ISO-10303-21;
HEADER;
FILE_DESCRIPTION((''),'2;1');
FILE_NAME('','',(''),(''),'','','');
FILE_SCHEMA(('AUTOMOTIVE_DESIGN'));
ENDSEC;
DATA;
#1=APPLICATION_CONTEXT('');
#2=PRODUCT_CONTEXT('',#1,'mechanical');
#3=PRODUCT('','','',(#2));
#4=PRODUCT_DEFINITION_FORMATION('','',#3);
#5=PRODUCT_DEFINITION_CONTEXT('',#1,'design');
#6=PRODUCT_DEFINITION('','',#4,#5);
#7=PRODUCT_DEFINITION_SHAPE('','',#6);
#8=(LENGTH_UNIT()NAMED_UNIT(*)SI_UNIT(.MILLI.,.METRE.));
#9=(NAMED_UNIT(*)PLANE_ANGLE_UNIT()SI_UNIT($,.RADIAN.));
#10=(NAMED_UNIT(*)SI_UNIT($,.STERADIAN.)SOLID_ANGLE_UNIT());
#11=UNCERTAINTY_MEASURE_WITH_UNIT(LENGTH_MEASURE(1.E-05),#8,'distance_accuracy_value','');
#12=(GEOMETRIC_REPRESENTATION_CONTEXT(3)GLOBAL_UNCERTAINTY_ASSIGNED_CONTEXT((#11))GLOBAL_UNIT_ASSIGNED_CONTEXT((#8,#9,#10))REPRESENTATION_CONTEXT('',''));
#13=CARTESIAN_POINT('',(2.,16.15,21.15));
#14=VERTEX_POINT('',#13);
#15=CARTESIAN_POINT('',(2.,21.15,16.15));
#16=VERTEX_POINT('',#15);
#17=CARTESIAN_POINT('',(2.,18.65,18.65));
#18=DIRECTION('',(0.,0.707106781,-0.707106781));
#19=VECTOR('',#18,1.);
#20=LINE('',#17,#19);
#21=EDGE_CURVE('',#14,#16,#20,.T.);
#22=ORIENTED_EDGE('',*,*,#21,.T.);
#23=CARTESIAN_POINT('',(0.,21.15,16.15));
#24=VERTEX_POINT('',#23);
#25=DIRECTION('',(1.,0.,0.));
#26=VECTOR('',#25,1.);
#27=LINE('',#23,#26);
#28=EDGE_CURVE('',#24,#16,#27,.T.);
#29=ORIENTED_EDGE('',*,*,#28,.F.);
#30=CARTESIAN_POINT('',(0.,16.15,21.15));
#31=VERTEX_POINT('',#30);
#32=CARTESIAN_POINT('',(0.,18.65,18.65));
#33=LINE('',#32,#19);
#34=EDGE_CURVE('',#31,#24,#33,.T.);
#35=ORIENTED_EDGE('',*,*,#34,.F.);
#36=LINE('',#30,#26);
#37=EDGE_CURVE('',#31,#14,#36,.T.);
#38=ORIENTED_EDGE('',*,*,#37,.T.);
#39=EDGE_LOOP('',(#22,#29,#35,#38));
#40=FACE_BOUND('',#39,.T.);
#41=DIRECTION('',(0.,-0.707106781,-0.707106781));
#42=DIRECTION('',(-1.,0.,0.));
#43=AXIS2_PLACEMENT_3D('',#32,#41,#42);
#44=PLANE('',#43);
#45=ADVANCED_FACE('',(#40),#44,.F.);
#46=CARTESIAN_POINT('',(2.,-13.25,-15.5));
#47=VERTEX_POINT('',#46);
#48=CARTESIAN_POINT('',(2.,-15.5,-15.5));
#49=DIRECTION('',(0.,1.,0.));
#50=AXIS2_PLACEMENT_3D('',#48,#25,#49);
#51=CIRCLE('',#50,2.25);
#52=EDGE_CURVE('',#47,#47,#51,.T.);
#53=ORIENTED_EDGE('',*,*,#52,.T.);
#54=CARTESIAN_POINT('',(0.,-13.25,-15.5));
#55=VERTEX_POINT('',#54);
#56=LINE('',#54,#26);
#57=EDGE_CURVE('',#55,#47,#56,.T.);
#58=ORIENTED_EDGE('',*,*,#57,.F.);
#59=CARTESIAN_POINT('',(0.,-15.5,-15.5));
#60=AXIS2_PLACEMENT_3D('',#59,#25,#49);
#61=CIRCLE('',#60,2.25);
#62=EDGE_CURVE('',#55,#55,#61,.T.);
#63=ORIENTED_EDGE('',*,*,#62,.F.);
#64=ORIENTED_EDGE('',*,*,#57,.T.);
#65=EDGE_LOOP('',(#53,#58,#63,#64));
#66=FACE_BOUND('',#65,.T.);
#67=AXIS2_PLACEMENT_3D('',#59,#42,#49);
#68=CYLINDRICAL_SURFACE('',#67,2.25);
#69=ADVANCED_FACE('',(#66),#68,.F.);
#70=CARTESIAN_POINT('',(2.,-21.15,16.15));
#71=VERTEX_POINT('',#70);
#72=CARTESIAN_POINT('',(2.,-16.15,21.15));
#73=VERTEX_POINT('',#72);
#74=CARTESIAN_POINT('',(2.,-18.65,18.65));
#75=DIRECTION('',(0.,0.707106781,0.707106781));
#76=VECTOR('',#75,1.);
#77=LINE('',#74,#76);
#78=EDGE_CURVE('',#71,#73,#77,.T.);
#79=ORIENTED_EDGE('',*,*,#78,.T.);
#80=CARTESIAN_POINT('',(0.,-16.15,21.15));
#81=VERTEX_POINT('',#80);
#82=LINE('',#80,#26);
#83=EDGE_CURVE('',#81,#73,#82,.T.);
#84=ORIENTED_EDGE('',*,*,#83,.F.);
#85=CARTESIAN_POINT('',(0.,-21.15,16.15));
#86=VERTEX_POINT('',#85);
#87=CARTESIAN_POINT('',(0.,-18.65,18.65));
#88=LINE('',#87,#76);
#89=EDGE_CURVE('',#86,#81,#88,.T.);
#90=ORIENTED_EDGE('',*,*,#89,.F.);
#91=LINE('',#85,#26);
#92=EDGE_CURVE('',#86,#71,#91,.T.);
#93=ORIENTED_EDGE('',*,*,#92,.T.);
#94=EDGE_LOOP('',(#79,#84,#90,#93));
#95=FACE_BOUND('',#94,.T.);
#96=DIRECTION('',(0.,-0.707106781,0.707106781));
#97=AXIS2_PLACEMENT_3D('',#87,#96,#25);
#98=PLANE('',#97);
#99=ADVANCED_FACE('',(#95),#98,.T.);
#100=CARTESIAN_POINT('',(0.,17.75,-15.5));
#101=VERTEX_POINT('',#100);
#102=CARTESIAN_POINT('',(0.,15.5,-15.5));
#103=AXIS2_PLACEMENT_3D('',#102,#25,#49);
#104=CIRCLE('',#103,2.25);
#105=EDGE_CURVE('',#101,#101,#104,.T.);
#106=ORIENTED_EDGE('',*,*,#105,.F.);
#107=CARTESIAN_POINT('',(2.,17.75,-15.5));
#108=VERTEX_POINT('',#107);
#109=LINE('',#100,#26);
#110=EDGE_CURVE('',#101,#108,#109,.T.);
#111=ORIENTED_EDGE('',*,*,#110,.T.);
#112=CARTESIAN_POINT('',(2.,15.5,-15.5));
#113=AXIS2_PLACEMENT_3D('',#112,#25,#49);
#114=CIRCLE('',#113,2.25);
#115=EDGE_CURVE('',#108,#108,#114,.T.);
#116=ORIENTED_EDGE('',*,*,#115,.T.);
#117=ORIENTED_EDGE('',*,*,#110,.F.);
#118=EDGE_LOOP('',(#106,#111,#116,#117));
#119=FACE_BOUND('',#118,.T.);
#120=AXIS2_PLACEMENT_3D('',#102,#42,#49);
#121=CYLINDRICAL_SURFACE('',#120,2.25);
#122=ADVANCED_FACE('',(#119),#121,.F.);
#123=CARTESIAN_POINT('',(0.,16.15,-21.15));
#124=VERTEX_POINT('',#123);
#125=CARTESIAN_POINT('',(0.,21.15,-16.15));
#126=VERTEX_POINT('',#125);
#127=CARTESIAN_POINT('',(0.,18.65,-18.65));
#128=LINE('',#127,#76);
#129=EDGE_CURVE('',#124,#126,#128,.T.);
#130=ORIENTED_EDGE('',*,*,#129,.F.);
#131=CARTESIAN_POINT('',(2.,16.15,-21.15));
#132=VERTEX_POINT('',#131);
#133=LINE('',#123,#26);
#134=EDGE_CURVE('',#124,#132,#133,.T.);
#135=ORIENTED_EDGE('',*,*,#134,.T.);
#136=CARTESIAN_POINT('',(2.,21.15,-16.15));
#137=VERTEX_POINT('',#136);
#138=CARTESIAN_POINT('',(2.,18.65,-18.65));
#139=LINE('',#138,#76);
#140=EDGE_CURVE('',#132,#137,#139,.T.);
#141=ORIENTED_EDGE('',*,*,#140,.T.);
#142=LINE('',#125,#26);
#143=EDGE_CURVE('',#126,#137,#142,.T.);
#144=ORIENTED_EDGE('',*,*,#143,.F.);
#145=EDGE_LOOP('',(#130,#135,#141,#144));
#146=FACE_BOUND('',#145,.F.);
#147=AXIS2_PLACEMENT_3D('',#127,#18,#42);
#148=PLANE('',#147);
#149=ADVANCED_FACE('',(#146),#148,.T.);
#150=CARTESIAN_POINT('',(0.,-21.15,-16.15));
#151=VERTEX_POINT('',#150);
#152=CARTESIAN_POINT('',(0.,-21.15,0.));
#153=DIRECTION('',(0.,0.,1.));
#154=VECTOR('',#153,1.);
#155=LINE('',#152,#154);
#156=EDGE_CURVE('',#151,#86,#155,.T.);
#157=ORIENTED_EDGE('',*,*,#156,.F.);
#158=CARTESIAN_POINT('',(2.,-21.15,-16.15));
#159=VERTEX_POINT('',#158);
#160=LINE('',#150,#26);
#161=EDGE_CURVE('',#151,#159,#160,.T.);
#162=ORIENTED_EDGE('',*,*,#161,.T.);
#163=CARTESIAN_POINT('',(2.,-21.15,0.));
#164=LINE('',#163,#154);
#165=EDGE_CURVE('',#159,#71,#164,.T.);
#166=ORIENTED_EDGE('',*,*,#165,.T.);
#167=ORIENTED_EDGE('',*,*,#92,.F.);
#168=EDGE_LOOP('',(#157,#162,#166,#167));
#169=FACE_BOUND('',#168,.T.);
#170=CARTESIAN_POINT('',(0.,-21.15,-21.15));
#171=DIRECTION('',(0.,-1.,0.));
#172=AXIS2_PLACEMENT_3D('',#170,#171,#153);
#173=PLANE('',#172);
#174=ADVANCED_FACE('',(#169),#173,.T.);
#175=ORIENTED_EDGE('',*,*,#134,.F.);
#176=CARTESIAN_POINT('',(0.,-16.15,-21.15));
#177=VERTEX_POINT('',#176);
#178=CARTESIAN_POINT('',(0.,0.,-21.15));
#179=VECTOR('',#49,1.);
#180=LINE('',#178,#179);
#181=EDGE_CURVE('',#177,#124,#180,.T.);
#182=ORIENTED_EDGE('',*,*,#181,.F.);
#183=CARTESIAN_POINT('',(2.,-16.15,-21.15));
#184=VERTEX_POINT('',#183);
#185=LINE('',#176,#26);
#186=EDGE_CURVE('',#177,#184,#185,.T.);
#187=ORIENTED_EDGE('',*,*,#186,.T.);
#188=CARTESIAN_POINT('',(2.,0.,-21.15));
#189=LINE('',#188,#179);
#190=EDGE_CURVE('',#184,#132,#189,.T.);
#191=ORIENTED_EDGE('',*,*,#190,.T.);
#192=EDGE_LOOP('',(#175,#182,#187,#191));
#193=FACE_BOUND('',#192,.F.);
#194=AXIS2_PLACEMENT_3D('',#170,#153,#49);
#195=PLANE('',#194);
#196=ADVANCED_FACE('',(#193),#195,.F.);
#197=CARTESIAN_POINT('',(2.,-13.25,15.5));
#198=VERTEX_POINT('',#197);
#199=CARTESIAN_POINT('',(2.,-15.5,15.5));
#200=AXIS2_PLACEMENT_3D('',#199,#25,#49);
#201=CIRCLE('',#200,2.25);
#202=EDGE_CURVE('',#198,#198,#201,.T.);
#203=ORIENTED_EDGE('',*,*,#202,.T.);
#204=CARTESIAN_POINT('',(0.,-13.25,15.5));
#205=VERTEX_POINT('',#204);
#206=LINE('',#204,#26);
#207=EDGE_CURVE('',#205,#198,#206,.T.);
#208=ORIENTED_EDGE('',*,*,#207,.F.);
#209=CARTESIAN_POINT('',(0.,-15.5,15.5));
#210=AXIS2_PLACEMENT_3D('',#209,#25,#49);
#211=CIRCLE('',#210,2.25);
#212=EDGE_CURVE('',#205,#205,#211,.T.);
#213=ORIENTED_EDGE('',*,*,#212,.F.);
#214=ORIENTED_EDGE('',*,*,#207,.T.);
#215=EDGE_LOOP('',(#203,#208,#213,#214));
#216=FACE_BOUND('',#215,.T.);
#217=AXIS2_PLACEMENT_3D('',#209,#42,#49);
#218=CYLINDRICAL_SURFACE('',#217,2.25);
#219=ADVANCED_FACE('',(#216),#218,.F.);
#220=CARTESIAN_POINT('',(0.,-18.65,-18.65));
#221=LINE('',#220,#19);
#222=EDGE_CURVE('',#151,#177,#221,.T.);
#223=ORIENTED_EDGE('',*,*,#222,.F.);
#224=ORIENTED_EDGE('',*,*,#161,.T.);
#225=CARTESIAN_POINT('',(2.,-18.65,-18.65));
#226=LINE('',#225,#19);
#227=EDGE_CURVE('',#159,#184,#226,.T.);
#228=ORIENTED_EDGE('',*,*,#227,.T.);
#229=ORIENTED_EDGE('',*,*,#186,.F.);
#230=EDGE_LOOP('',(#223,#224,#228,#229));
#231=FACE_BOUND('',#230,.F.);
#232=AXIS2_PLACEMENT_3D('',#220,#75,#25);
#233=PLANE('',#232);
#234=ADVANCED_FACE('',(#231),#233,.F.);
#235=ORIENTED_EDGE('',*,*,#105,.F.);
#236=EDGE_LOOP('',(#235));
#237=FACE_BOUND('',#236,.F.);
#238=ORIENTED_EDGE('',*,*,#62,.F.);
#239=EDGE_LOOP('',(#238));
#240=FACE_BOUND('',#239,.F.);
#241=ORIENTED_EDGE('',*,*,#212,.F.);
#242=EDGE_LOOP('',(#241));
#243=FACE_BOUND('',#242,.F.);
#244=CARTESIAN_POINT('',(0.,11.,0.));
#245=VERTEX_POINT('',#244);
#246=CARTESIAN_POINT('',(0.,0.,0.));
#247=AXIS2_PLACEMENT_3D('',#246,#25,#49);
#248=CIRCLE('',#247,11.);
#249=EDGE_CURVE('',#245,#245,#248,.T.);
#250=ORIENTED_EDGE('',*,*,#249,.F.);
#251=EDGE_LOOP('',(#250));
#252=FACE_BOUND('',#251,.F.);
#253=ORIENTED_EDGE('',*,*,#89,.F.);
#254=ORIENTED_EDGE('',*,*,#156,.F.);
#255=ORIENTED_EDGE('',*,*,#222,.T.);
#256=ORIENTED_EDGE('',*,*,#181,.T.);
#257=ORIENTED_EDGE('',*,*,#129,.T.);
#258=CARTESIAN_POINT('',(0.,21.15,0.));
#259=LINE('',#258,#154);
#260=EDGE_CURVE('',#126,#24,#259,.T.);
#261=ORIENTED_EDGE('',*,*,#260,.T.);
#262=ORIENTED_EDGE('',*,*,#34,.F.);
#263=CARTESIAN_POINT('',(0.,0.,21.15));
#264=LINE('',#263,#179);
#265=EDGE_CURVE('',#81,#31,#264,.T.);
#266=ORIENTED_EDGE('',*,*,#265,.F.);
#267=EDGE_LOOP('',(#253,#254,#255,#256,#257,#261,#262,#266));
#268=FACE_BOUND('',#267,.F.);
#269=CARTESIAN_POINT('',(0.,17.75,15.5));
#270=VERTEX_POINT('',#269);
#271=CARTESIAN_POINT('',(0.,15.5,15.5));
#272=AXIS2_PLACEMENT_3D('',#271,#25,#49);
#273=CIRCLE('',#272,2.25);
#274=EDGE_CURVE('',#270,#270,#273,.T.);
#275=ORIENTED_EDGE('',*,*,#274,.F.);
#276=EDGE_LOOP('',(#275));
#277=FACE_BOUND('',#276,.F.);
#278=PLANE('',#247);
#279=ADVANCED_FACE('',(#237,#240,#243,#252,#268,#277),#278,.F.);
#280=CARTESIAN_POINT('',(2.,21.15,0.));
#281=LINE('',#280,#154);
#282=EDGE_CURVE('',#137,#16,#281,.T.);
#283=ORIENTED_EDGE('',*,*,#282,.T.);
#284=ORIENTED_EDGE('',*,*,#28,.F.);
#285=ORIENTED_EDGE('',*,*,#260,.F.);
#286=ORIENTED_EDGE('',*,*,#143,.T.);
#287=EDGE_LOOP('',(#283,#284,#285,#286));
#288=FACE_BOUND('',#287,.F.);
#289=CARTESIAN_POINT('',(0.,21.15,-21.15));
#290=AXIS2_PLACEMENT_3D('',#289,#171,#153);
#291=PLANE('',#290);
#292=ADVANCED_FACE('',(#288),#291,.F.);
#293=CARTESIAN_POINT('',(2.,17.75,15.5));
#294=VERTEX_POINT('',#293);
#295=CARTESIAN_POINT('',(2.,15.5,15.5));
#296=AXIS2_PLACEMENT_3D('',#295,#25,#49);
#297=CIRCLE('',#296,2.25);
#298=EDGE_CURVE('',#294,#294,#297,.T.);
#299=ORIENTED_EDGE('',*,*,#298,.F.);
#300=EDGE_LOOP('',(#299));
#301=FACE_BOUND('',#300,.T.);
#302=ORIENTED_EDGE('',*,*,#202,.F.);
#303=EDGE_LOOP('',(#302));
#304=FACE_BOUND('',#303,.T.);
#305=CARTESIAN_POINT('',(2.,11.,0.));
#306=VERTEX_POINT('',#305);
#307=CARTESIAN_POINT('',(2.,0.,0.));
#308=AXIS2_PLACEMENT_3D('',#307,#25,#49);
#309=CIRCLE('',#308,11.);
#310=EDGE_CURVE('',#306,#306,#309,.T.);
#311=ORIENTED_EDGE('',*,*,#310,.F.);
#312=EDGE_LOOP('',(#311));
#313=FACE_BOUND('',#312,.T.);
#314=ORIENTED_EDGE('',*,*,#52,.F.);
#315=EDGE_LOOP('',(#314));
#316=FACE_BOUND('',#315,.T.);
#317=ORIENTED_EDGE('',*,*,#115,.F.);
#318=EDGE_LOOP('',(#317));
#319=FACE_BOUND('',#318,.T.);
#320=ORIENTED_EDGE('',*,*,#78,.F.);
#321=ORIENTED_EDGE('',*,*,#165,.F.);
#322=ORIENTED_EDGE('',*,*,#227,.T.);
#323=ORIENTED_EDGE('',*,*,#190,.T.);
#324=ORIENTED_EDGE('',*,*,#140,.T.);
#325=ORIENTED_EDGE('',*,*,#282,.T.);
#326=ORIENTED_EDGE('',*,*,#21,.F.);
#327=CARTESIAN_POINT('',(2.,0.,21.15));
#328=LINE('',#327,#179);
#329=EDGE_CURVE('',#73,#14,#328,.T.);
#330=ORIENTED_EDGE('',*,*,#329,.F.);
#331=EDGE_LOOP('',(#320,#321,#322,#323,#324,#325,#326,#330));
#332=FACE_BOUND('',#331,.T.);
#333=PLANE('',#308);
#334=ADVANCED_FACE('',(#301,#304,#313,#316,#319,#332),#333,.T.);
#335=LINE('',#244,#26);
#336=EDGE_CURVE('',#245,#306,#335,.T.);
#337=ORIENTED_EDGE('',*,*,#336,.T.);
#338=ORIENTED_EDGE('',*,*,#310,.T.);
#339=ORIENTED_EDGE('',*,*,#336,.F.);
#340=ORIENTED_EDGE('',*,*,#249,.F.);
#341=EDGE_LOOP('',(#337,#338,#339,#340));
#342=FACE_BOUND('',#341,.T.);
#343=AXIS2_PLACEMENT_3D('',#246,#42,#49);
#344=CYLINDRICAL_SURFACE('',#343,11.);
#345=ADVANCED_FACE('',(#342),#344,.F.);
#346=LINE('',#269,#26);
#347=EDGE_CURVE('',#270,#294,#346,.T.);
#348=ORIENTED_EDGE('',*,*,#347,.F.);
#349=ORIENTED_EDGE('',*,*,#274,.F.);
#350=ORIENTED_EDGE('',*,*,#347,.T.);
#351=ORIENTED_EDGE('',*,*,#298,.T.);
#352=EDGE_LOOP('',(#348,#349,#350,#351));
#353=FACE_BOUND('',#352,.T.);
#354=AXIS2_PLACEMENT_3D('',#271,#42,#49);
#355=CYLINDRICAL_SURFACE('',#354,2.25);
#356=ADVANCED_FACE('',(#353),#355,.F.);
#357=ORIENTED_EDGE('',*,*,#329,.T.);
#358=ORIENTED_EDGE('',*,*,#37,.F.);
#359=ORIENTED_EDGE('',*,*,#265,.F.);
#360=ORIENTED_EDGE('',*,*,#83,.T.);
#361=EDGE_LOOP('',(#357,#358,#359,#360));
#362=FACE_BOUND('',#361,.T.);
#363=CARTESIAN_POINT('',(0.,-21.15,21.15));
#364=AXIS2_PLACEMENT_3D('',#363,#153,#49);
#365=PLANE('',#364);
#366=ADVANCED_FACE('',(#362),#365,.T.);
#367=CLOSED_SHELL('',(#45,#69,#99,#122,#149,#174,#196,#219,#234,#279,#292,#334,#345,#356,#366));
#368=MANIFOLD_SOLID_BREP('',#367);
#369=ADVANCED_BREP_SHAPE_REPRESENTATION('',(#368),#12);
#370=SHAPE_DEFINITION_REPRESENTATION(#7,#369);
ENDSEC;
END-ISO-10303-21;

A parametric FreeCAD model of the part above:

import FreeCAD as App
import Part
import Sketcher

V = App.Vector


def edges_at(feature, points):
    """Names of the edges that pass closest to the given points."""
    edges = feature.Shape.Edges
    near = lambda p: min(range(len(edges)), key=lambda i: edges[i].distToShape(Part.Vertex(*p))[0])
    return sorted({f"Edge{near(p) + 1}" for p in points})


def add_polygon(sketch, points):
    """Adds a closed chain of lines whose ends are joined by coincident constraints."""
    first, n = sketch.GeometryCount, len(points)
    for a, b in zip(points, points[1:] + points[:1]):
        sketch.addGeometry(Part.LineSegment(App.Vector(*a, 0), App.Vector(*b, 0)), False)
    for i in range(n):
        sketch.addConstraint(Sketcher.Constraint("Coincident", first + i, 2, first + (i + 1) % n, 1))

doc = App.newDocument("Part")
body = doc.addObject("PartDesign::Body", "Body")

sketch1 = body.newObject("Sketcher::SketchObject", "Sketch")
sketch1.AttachmentSupport = (doc.getObject("YZ_Plane"), [""])
sketch1.MapMode = "FlatFace"
add_polygon(sketch1, [(-21.1, 21.1), (-21.1, -21.1), (21.1, -21.1), (21.1, 21.1)])
sketch1.addGeometry(Part.Circle(V(-15.5, -15.5, 0), V(0, 0, 1), 2.2), False)
sketch1.addGeometry(Part.Circle(V(15.5, -15.5, 0), V(0, 0, 1), 2.2), False)
sketch1.addGeometry(Part.Circle(V(-15.5, 15.5, 0), V(0, 0, 1), 2.2), False)
sketch1.addGeometry(Part.Circle(V(0, 0, 0), V(0, 0, 1), 11), False)
sketch1.addGeometry(Part.Circle(V(15.5, 15.5, 0), V(0, 0, 1), 2.2), False)
sketch1.addConstraint([
    Sketcher.Constraint("Vertical", 0),
    Sketcher.Constraint("Horizontal", 1),
    Sketcher.Constraint("Vertical", 2),
    Sketcher.Constraint("Horizontal", 3),
    Sketcher.Constraint("Coincident", 7, 3, -1, 1),
    Sketcher.Constraint("Equal", 4, 5),
    Sketcher.Constraint("Equal", 5, 6),
    Sketcher.Constraint("Equal", 6, 8),
    Sketcher.Constraint("Symmetric", 5, 3, 6, 3, -1, 1),
    Sketcher.Constraint("Symmetric", 4, 3, 8, 3, -1, 1),
    Sketcher.Constraint("Symmetric", 0, 2, 2, 2, -1, 1),
    Sketcher.Constraint("Symmetric", 4, 3, 5, 3, -2),
    Sketcher.Constraint("Equal", 3, 0),
    Sketcher.Constraint("Diameter", 7, 22.0),
    Sketcher.Constraint("Diameter", 4, 4.5),
    Sketcher.Constraint("DistanceX", 1, 1, 1, 2, 42.3),
    Sketcher.Constraint("DistanceX", 4, 3, 5, 3, 31.0),
    Sketcher.Constraint("DistanceY", 4, 3, 6, 3, 31.0),
])
pad1 = body.newObject("PartDesign::Pad", "Pad")
pad1.Profile = sketch1
pad1.Length = 2
doc.recompute()

chamfer = body.newObject("PartDesign::Chamfer", "Chamfer")
chamfer.Base = (pad1, edges_at(pad1, [
    (1, -21.15, 21.15),
    (1, 21.15, 21.15),
    (1, -21.15, -21.15),
    (1, 21.15, -21.15),
]))
chamfer.Size = 5

doc.recompute()
